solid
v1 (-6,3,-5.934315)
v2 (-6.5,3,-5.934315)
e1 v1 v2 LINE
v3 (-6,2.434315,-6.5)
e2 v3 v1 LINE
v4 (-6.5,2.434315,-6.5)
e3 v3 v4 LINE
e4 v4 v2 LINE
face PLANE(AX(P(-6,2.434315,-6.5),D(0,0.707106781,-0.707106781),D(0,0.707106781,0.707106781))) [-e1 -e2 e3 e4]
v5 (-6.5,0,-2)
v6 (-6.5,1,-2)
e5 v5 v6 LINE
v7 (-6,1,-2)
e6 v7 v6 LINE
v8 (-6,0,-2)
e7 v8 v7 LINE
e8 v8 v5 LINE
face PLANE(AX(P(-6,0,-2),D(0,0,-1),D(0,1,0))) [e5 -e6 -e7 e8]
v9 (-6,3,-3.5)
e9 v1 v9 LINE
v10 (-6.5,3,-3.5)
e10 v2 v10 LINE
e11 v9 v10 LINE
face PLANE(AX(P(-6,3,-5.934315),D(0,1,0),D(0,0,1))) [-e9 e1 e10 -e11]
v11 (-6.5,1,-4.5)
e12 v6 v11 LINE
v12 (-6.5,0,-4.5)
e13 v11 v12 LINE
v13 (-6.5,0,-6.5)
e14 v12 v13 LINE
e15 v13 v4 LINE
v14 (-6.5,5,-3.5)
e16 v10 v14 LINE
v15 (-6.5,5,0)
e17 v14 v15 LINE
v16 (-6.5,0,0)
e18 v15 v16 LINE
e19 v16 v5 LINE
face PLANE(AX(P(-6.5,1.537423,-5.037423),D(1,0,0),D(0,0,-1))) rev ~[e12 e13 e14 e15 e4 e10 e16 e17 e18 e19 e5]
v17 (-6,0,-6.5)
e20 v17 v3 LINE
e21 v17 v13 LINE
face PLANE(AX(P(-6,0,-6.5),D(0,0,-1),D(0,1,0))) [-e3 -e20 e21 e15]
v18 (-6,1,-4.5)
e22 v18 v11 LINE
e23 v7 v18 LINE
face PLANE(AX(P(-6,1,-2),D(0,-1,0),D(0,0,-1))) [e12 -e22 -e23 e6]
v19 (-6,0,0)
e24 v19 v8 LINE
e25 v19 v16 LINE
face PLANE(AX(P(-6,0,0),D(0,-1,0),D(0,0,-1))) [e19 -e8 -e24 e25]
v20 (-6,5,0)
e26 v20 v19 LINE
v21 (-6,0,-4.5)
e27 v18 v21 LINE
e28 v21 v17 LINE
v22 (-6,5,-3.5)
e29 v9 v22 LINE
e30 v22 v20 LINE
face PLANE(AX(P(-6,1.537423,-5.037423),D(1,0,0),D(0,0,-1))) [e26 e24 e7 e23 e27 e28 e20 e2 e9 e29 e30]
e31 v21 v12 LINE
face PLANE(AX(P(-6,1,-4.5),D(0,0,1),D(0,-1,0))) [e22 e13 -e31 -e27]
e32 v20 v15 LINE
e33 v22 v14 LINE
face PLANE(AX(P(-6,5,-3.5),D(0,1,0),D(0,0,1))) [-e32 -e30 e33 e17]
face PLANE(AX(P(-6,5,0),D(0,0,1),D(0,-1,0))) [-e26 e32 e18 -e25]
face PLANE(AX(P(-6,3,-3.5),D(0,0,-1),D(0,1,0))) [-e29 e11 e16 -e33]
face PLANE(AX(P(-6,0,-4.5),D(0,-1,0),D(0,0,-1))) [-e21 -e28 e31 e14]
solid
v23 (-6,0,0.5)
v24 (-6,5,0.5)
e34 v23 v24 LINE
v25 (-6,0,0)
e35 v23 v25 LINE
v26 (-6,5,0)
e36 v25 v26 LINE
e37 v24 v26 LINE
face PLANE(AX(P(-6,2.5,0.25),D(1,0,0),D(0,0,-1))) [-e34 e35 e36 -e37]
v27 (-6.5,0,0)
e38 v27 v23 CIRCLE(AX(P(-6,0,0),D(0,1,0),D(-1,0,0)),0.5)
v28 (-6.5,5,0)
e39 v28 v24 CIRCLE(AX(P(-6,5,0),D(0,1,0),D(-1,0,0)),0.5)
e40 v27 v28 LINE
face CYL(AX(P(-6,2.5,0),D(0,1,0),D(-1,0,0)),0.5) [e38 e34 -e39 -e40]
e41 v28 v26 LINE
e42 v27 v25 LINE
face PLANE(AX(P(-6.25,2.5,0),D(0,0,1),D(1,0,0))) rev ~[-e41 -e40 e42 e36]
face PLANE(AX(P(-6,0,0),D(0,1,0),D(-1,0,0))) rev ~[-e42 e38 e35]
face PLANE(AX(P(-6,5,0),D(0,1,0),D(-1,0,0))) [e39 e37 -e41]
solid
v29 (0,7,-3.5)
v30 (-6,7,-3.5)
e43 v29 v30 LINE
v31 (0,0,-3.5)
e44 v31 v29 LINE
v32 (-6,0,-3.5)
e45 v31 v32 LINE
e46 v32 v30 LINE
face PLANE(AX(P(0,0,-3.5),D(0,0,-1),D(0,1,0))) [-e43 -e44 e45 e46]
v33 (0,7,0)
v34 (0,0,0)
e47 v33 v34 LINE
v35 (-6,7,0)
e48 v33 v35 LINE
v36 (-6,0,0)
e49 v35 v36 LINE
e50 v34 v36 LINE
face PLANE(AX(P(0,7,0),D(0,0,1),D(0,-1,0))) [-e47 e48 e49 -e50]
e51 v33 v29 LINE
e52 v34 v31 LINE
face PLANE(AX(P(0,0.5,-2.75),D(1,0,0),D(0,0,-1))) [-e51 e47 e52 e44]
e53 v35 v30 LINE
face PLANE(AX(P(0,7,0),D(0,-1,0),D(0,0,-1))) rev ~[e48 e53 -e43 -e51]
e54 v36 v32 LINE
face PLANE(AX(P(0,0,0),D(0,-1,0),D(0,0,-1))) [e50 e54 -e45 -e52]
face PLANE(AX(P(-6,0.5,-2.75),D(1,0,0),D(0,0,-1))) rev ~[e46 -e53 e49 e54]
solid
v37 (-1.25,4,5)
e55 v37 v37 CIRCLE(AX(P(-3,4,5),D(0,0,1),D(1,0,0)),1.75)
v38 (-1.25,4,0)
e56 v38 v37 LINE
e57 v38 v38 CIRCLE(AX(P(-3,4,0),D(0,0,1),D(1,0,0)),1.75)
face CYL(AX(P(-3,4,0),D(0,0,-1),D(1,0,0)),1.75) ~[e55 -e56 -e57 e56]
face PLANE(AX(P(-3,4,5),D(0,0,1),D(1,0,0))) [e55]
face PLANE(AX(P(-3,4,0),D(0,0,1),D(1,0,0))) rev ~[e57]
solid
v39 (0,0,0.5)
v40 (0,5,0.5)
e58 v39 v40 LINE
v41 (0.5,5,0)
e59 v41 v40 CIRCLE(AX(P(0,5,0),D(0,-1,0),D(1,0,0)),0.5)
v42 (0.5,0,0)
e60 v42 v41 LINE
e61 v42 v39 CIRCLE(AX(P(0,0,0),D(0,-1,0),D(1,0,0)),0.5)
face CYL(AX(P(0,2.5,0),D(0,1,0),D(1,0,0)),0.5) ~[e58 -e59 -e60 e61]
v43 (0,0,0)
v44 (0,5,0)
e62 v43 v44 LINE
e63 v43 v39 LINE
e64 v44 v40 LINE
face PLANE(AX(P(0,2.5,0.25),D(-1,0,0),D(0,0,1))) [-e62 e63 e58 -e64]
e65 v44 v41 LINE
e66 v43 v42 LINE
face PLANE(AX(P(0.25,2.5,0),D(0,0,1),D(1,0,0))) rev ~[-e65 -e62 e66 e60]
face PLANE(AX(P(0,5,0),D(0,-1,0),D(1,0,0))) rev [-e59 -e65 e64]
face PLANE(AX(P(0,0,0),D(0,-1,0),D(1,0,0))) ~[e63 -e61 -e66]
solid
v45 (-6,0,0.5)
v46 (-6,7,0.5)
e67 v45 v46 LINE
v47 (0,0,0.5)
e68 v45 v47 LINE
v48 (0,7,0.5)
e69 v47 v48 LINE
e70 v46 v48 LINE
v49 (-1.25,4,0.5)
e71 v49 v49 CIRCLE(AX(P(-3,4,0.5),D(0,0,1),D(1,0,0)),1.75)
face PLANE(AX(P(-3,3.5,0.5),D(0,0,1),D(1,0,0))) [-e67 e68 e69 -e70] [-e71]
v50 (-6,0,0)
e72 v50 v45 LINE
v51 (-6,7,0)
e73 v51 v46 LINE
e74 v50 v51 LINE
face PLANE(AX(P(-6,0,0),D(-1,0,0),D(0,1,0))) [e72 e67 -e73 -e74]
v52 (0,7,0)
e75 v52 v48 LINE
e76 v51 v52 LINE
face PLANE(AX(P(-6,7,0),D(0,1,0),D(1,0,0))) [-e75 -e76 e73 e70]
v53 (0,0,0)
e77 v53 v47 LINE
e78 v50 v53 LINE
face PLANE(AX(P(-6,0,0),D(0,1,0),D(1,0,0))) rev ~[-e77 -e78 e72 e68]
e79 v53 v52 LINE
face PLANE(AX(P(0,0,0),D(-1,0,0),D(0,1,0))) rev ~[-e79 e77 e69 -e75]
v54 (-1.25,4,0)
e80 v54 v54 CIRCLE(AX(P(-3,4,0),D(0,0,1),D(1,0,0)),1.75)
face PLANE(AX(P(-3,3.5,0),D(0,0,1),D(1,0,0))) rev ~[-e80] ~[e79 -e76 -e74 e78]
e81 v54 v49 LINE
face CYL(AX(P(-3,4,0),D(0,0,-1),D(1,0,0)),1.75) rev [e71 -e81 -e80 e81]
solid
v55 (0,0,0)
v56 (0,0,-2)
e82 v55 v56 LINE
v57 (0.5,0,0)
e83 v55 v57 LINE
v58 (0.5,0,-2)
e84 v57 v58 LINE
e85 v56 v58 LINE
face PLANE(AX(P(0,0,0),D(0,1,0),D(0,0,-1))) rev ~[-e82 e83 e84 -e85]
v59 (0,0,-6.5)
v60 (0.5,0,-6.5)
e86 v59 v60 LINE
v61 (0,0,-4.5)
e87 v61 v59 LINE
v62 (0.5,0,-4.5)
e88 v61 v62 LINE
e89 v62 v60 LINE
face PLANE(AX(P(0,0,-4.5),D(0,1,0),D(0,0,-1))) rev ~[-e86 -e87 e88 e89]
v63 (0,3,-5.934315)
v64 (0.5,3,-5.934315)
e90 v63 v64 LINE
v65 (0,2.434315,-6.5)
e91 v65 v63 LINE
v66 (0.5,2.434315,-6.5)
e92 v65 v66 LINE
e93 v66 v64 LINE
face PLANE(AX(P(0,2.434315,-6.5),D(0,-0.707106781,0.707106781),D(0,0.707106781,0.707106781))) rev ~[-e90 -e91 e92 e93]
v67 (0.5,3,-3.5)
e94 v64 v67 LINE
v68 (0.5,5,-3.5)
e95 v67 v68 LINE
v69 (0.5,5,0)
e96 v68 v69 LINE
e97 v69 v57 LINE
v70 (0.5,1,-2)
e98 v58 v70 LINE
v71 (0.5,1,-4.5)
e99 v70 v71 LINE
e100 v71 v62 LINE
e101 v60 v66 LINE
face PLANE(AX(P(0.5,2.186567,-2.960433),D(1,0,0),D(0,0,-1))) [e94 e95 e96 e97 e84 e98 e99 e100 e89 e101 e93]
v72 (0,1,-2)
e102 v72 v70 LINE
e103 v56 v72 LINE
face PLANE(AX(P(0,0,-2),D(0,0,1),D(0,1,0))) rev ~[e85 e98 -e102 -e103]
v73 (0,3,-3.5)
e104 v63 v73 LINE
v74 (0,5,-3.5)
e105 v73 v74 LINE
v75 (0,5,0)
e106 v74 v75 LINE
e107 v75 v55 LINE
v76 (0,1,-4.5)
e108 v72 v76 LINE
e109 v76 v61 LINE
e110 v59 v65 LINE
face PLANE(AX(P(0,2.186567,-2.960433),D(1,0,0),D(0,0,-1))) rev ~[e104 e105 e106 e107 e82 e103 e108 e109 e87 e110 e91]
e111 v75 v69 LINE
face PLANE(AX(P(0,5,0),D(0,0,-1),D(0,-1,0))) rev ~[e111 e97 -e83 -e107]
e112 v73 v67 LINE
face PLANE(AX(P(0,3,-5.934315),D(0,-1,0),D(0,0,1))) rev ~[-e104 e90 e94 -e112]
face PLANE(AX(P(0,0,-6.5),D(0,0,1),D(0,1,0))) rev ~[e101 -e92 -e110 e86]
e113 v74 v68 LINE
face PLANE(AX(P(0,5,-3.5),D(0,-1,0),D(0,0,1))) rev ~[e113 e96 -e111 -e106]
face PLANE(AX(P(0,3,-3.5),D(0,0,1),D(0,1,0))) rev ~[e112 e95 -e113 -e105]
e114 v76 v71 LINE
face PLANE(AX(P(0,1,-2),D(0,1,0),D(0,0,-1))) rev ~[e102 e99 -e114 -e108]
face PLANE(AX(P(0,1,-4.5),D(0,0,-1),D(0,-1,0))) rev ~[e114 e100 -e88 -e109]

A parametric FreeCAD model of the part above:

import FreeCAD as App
import Part
import Sketcher
Q = App.Units.Quantity


def add_polygon(sketch, points):
    """Adds a closed chain of lines whose ends are joined by coincident constraints."""
    first, n = sketch.GeometryCount, len(points)
    for a, b in zip(points, points[1:] + points[:1]):
        sketch.addGeometry(Part.LineSegment(App.Vector(*a, 0), App.Vector(*b, 0)), False)
    for i in range(n):
        sketch.addConstraint(Sketcher.Constraint("Coincident", first + i, 2, first + (i + 1) % n, 1))

doc = App.newDocument("Part")
body = doc.addObject("PartDesign::Body", "Body")

# Sketch on YZ plane
sketch1 = doc.addObject("Sketcher::SketchObject", "Sketch")
body.addObject(sketch1)
sketch1.AttachmentSupport = (doc.YZ_Plane, [""])
sketch1.MapMode = "FlatFace"
add_polygon(sketch1, [(5, 0), (0, 0), (0, -2), (1, -2), (1, -4.5), (0, -4.5), (0, -6.5), (2.434315, -6.5), (3, -5.934315), (3, -3.5), (5, -3.5)])  # lines 0-10
sketch1.addConstraint(Sketcher.Constraint("Horizontal", 0))
sketch1.addConstraint(Sketcher.Constraint("Vertical", 1))
sketch1.addConstraint(Sketcher.Constraint("Horizontal", 2))
sketch1.addConstraint(Sketcher.Constraint("Vertical", 3))
sketch1.addConstraint(Sketcher.Constraint("Horizontal", 4))
sketch1.addConstraint(Sketcher.Constraint("Vertical", 5))
sketch1.addConstraint(Sketcher.Constraint("Horizontal", 6))
sketch1.addConstraint(Sketcher.Constraint("Vertical", 8))
sketch1.addConstraint(Sketcher.Constraint("Horizontal", 9))
sketch1.addConstraint(Sketcher.Constraint("Vertical", 10))
sketch1.addConstraint(Sketcher.Constraint("Coincident", 0, 2, -1, 1))
sketch1.addConstraint(Sketcher.Constraint("PointOnObject", 4, 2, -2))
sketch1.addConstraint(Sketcher.Constraint("Equal", 9, 1))
sketch1.addConstraint(Sketcher.Constraint("Equal", 1, 5))
sketch1.addConstraint(Sketcher.Constraint("Equal", 6, 8))
sketch1.addConstraint(Sketcher.Constraint("DistanceX", 0, 2, 0, 1, 5.0))
sketch1.addConstraint(Sketcher.Constraint("DistanceX", 2, 1, 2, 2, 1.0))
sketch1.addConstraint(Sketcher.Constraint("DistanceX", 9, 1, 9, 2, 2.0))
sketch1.addConstraint(Sketcher.Constraint("Angle", 7, Q("45 deg")))
sketch1.addConstraint(Sketcher.Constraint("DistanceY", 3, 2, 3, 1, 2.5))
sketch1.addConstraint(Sketcher.Constraint("Distance", 7, 0.8))
pad1 = doc.addObject("PartDesign::Pad", "Pad")
body.addObject(pad1)
pad1.Profile = sketch1
pad1.Length = 0.5
body2 = doc.addObject("PartDesign::Body", "Body001")

# Sketch on YZ plane
sketch2 = doc.addObject("Sketcher::SketchObject", "Sketch001")
body2.addObject(sketch2)
sketch2.AttachmentSupport = (doc.getObject("YZ_Plane001"), [""])
sketch2.MapMode = "FlatFace"
add_polygon(sketch2, [(0, -3.5), (7, -3.5), (7, 0), (0, 0)])  # lines 0-3
sketch2.addConstraint(Sketcher.Constraint("Horizontal", 0))
sketch2.addConstraint(Sketcher.Constraint("Vertical", 1))
sketch2.addConstraint(Sketcher.Constraint("Horizontal", 2))
sketch2.addConstraint(Sketcher.Constraint("Vertical", 3))
sketch2.addConstraint(Sketcher.Constraint("Coincident", 2, 2, -1, 1))
sketch2.addConstraint(Sketcher.Constraint("DistanceX", 0, 1, 0, 2, 7.0))
sketch2.addConstraint(Sketcher.Constraint("DistanceY", 1, 1, 1, 2, 3.5))
pad2 = doc.addObject("PartDesign::Pad", "Pad001")
body2.addObject(pad2)
pad2.Profile = sketch2
pad2.Length = 6
pad2.Reversed = True
body3 = doc.addObject("PartDesign::Body", "Body002")

# Sketch on YZ plane
sketch3 = doc.addObject("Sketcher::SketchObject", "Sketch002")
body3.addObject(sketch3)
sketch3.AttachmentSupport = (doc.getObject("YZ_Plane002"), [""])
sketch3.MapMode = "FlatFace"
sketch3.AttachmentOffset = App.Placement(App.Vector(0, 0, -6), App.Rotation())
add_polygon(sketch3, [(3, -5.934315), (3, -3.5), (5, -3.5), (5, 0), (0, 0), (0, -2), (1, -2), (1, -4.5), (0, -4.5), (0, -6.5), (2.434315, -6.5)])  # lines 0-10
sketch3.addConstraint(Sketcher.Constraint("Vertical", 0))
sketch3.addConstraint(Sketcher.Constraint("Horizontal", 1))
sketch3.addConstraint(Sketcher.Constraint("Vertical", 2))
sketch3.addConstraint(Sketcher.Constraint("Horizontal", 3))
sketch3.addConstraint(Sketcher.Constraint("Vertical", 4))
sketch3.addConstraint(Sketcher.Constraint("Horizontal", 5))
sketch3.addConstraint(Sketcher.Constraint("Vertical", 6))
sketch3.addConstraint(Sketcher.Constraint("Horizontal", 7))
sketch3.addConstraint(Sketcher.Constraint("Vertical", 8))
sketch3.addConstraint(Sketcher.Constraint("Horizontal", 9))
sketch3.addConstraint(Sketcher.Constraint("Coincident", 3, 2, -1, 1))
sketch3.addConstraint(Sketcher.Constraint("PointOnObject", 7, 2, -2))
sketch3.addConstraint(Sketcher.Constraint("Equal", 9, 0))
sketch3.addConstraint(Sketcher.Constraint("Equal", 1, 4))
sketch3.addConstraint(Sketcher.Constraint("Equal", 4, 8))
sketch3.addConstraint(Sketcher.Constraint("DistanceX", 1, 1, 1, 2, 2.0))
sketch3.addConstraint(Sketcher.Constraint("DistanceX", 3, 2, 3, 1, 5.0))
sketch3.addConstraint(Sketcher.Constraint("DistanceX", 5, 1, 5, 2, 1.0))
sketch3.addConstraint(Sketcher.Constraint("Angle", 10, Q("45 deg")))
sketch3.addConstraint(Sketcher.Constraint("DistanceY", 2, 1, 2, 2, 3.5))
sketch3.addConstraint(Sketcher.Constraint("Distance", 10, 0.8))
pad3 = doc.addObject("PartDesign::Pad", "Pad002")
body3.addObject(pad3)
pad3.Profile = sketch3
pad3.Length = 0.5
pad3.Reversed = True
body4 = doc.addObject("PartDesign::Body", "Body003")

# Sketch on XY plane
sketch4 = doc.addObject("Sketcher::SketchObject", "Sketch003")
body4.addObject(sketch4)
sketch4.AttachmentSupport = (doc.getObject("XY_Plane003"), [""])
sketch4.MapMode = "FlatFace"
sketch4.addGeometry(Part.Circle(App.Vector(-3, 4, 0), App.Vector(0, 0, 1), 1.75), False)
sketch4.addConstraint(Sketcher.Constraint("Diameter", 0, 3.5))
sketch4.addConstraint(Sketcher.Constraint("DistanceX", 0, 3, -1, 1, 3.0))
sketch4.addConstraint(Sketcher.Constraint("DistanceY", -1, 1, 0, 3, 4.0))
pad4 = doc.addObject("PartDesign::Pad", "Pad003")
body4.addObject(pad4)
pad4.Profile = sketch4
pad4.Length = 5
body5 = doc.addObject("PartDesign::Body", "Body004")

# Sketch on XY plane
sketch5 = doc.addObject("Sketcher::SketchObject", "Sketch004")
body5.addObject(sketch5)
sketch5.AttachmentSupport = (doc.getObject("XY_Plane004"), [""])
sketch5.MapMode = "FlatFace"
add_polygon(sketch5, [(-6, 7), (-6, 0), (0, 0), (0, 7)])  # lines 0-3
sketch5.addGeometry(Part.Circle(App.Vector(-3, 4, 0), App.Vector(0, 0, 1), 1.75), False)  # 4
sketch5.addConstraint(Sketcher.Constraint("Vertical", 0))
sketch5.addConstraint(Sketcher.Constraint("Horizontal", 1))
sketch5.addConstraint(Sketcher.Constraint("Vertical", 2))
sketch5.addConstraint(Sketcher.Constraint("Horizontal", 3))
sketch5.addConstraint(Sketcher.Constraint("Coincident", 1, 2, -1, 1))
sketch5.addConstraint(Sketcher.Constraint("Diameter", 4, 3.5))
sketch5.addConstraint(Sketcher.Constraint("DistanceX", 1, 1, 1, 2, 6.0))
sketch5.addConstraint(Sketcher.Constraint("DistanceY", 0, 2, 0, 1, 7.0))
sketch5.addConstraint(Sketcher.Constraint("DistanceX", 4, 3, -1, 1, 3.0))
sketch5.addConstraint(Sketcher.Constraint("DistanceY", -1, 1, 4, 3, 4.0))
pad5 = doc.addObject("PartDesign::Pad", "Pad004")
body5.addObject(pad5)
pad5.Profile = sketch5
pad5.Length = 0.5
body6 = doc.addObject("PartDesign::Body", "Body005")

# Sketch on XY plane
sketch6 = doc.addObject("Sketcher::SketchObject", "Sketch005")
body6.addObject(sketch6)
sketch6.AttachmentSupport = (doc.getObject("XY_Plane005"), [""])
sketch6.MapMode = "FlatFace"
add_polygon(sketch6, [(-6.5, 5), (-6.5, 0), (-6, 0), (-6, 5)])  # lines 0-3
sketch6.addGeometry(Part.LineSegment(App.Vector(-6, 0, 0), App.Vector(-6, 5, 0)), True)  # axis
sketch6.addConstraint(Sketcher.Constraint("Vertical", 0))
sketch6.addConstraint(Sketcher.Constraint("Horizontal", 1))
sketch6.addConstraint(Sketcher.Constraint("Vertical", 2))
sketch6.addConstraint(Sketcher.Constraint("Horizontal", 3))
sketch6.addConstraint(Sketcher.Constraint("Vertical", 4))
sketch6.addConstraint(Sketcher.Constraint("Coincident", 4, 1, 1, 2))
sketch6.addConstraint(Sketcher.Constraint("PointOnObject", 0, 2, -1))
sketch6.addConstraint(Sketcher.Constraint("Horizontal", 3, 2, 4, 2))
sketch6.addConstraint(Sketcher.Constraint("DistanceY", 0, 2, 0, 1, 5.0))
sketch6.addConstraint(Sketcher.Constraint("DistanceX", 1, 1, 1, 2, 0.5))
sketch6.addConstraint(Sketcher.Constraint("DistanceX", 1, 2, -1, 1, 6.0))
revolution = doc.addObject("PartDesign::Revolution", "Revolution")
body6.addObject(revolution)
revolution.Profile = sketch6
revolution.ReferenceAxis = (sketch6, ["Axis0"])
revolution.Angle = 90
body7 = doc.addObject("PartDesign::Body", "Body006")

# Sketch on XY plane
sketch7 = doc.addObject("Sketcher::SketchObject", "Sketch006")
body7.addObject(sketch7)
sketch7.AttachmentSupport = (doc.getObject("XY_Plane006"), [""])
sketch7.MapMode = "FlatFace"
add_polygon(sketch7, [(0, 5), (0, 0), (0.5, 0), (0.5, 5)])  # lines 0-3
sketch7.addConstraint(Sketcher.Constraint("Vertical", 0))
sketch7.addConstraint(Sketcher.Constraint("Horizontal", 1))
sketch7.addConstraint(Sketcher.Constraint("Vertical", 2))
sketch7.addConstraint(Sketcher.Constraint("Horizontal", 3))
sketch7.addConstraint(Sketcher.Constraint("Coincident", 0, 2, -1, 1))
sketch7.addConstraint(Sketcher.Constraint("DistanceY", 0, 2, 0, 1, 5.0))
sketch7.addConstraint(Sketcher.Constraint("DistanceX", 1, 1, 1, 2, 0.5))
revolution2 = doc.addObject("PartDesign::Revolution", "Revolution001")
body7.addObject(revolution2)
revolution2.Profile = sketch7
revolution2.ReferenceAxis = (sketch7, ["V_Axis"])
revolution2.Angle = 90
revolution2.Reversed = True

doc.recompute()
